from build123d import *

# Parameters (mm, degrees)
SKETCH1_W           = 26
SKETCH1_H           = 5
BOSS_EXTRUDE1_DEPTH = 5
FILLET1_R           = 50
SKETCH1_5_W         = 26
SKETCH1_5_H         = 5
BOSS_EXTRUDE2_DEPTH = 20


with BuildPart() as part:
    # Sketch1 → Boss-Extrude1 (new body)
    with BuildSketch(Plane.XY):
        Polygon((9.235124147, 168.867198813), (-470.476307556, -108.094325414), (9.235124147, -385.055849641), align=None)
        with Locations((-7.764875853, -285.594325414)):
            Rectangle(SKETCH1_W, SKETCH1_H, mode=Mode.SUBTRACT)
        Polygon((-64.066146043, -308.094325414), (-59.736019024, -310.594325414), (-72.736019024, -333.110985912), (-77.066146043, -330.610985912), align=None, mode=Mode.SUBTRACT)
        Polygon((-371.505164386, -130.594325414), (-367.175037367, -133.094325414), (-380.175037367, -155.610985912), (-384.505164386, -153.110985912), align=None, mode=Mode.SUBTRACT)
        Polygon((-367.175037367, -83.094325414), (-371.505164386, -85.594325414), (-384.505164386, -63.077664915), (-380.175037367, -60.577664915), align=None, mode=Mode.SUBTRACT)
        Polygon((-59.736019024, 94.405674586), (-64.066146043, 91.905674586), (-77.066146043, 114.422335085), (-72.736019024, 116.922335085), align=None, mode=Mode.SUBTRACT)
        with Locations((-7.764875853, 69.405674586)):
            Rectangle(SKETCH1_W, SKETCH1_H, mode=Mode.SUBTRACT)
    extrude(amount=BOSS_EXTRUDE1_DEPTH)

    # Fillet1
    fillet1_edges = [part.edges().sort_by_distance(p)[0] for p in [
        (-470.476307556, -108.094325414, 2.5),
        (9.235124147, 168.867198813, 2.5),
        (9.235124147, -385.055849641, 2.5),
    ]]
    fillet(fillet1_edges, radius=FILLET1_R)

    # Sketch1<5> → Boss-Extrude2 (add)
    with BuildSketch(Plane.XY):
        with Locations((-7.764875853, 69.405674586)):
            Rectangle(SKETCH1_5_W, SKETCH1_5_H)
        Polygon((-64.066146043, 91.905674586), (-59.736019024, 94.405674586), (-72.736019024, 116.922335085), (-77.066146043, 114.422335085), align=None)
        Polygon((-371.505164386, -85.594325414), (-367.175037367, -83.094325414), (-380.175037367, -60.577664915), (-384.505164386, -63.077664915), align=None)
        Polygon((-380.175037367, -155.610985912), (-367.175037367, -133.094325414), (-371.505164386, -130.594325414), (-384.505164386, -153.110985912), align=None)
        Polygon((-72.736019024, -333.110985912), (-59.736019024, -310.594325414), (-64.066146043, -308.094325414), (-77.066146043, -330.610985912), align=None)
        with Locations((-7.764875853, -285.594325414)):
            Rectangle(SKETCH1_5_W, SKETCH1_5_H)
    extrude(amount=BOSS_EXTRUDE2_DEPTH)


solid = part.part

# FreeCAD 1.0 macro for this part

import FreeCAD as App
import Part
import Sketcher
Q = App.Units.Quantity


def edges_at(feature, points):
    """Names of the edges that pass closest to the given points."""
    edges = feature.Shape.Edges
    near = lambda p: min(range(len(edges)), key=lambda i: edges[i].distToShape(Part.Vertex(*p))[0])
    return sorted({f"Edge{near(p) + 1}" for p in points})

doc = App.newDocument("Part")
params = doc.addObject("Spreadsheet::Sheet", "Params")
for row, (alias, value) in enumerate([
    ("sketch1_width", "26 mm"),
    ("sketch1_height", "5 mm"),
    ("sketch1_length", "26 mm"),
    ("sketch1_length2", "5 mm"),
    ("pad1_length", "5 mm"),
    ("fillet_radius", "50 mm"),
    ("sketch2_width", "26 mm"),
    ("sketch2_height", "5 mm"),
    ("sketch2_length", "5 mm"),
    ("sketch2_length2", "26 mm"),
    ("pad2_length", "20 mm"),
], start=1):
    params.set(f"A{row}", alias)
    params.set(f"B{row}", "=" + value)
    params.setAlias(f"B{row}", alias)

body = doc.addObject("PartDesign::Body", "Body")

sketch1 = body.newObject("Sketcher::SketchObject", "Sketch")
sketch1.AttachmentSupport = (doc.getObject("XY_Plane"), [""])
sketch1.MapMode = "FlatFace"
sketch1.addGeometry([
    Part.LineSegment(App.Vector(9, 169, 0), App.Vector(-470, -108, 0)),
    Part.LineSegment(App.Vector(-470, -108, 0), App.Vector(9, -385, 0)),
    Part.LineSegment(App.Vector(9, -385, 0), App.Vector(9, 169, 0)),
    Part.LineSegment(App.Vector(-385, -153, 0), App.Vector(-372, -131, 0)),
    Part.LineSegment(App.Vector(-372, -131, 0), App.Vector(-367, -133, 0)),
    Part.LineSegment(App.Vector(-367, -133, 0), App.Vector(-380, -156, 0)),
    Part.LineSegment(App.Vector(-380, -156, 0), App.Vector(-385, -153, 0)),
    Part.LineSegment(App.Vector(-77, -331, 0), App.Vector(-64, -308, 0)),
    Part.LineSegment(App.Vector(-64, -308, 0), App.Vector(-60, -311, 0)),
    Part.LineSegment(App.Vector(-60, -311, 0), App.Vector(-73, -333, 0)),
    Part.LineSegment(App.Vector(-73, -333, 0), App.Vector(-77, -331, 0)),
    Part.LineSegment(App.Vector(5, -288, 0), App.Vector(-21, -288, 0)),
    Part.LineSegment(App.Vector(-21, -288, 0), App.Vector(-21, -283, 0)),
    Part.LineSegment(App.Vector(-21, -283, 0), App.Vector(5, -283, 0)),
    Part.LineSegment(App.Vector(5, -283, 0), App.Vector(5, -288, 0)),
    Part.LineSegment(App.Vector(-380, -61, 0), App.Vector(-367, -83, 0)),
    Part.LineSegment(App.Vector(-367, -83, 0), App.Vector(-372, -86, 0)),
    Part.LineSegment(App.Vector(-372, -86, 0), App.Vector(-385, -63, 0)),
    Part.LineSegment(App.Vector(-385, -63, 0), App.Vector(-380, -61, 0)),
    Part.LineSegment(App.Vector(-73, 117, 0), App.Vector(-60, 94, 0)),
    Part.LineSegment(App.Vector(-60, 94, 0), App.Vector(-64, 92, 0)),
    Part.LineSegment(App.Vector(-64, 92, 0), App.Vector(-77, 114, 0)),
    Part.LineSegment(App.Vector(-77, 114, 0), App.Vector(-73, 117, 0)),
    Part.LineSegment(App.Vector(5, 67, 0), App.Vector(-21, 67, 0)),
    Part.LineSegment(App.Vector(-21, 67, 0), App.Vector(-21, 72, 0)),
    Part.LineSegment(App.Vector(-21, 72, 0), App.Vector(5, 72, 0)),
    Part.LineSegment(App.Vector(5, 72, 0), App.Vector(5, 67, 0)),
], False)
sketch1.addConstraint([
    Sketcher.Constraint("Coincident", 0, 2, 1, 1),
    Sketcher.Constraint("Coincident", 1, 2, 2, 1),
    Sketcher.Constraint("Coincident", 2, 2, 0, 1),
    Sketcher.Constraint("Coincident", 3, 2, 4, 1),
    Sketcher.Constraint("Coincident", 4, 2, 5, 1),
    Sketcher.Constraint("Coincident", 5, 2, 6, 1),
    Sketcher.Constraint("Coincident", 6, 2, 3, 1),
    Sketcher.Constraint("Coincident", 7, 2, 8, 1),
    Sketcher.Constraint("Coincident", 8, 2, 9, 1),
    Sketcher.Constraint("Coincident", 9, 2, 10, 1),
    Sketcher.Constraint("Coincident", 10, 2, 7, 1),
    Sketcher.Constraint("Coincident", 11, 2, 12, 1),
    Sketcher.Constraint("Coincident", 12, 2, 13, 1),
    Sketcher.Constraint("Coincident", 13, 2, 14, 1),
    Sketcher.Constraint("Coincident", 14, 2, 11, 1),
    Sketcher.Constraint("Coincident", 15, 2, 16, 1),
    Sketcher.Constraint("Coincident", 16, 2, 17, 1),
    Sketcher.Constraint("Coincident", 17, 2, 18, 1),
    Sketcher.Constraint("Coincident", 18, 2, 15, 1),
    Sketcher.Constraint("Coincident", 19, 2, 20, 1),
    Sketcher.Constraint("Coincident", 20, 2, 21, 1),
    Sketcher.Constraint("Coincident", 21, 2, 22, 1),
    Sketcher.Constraint("Coincident", 22, 2, 19, 1),
    Sketcher.Constraint("Coincident", 23, 2, 24, 1),
    Sketcher.Constraint("Coincident", 24, 2, 25, 1),
    Sketcher.Constraint("Coincident", 25, 2, 26, 1),
    Sketcher.Constraint("Coincident", 26, 2, 23, 1),
    Sketcher.Constraint("Vertical", 2),
    Sketcher.Constraint("Horizontal", 11),
    Sketcher.Constraint("Vertical", 12),
    Sketcher.Constraint("Horizontal", 13),
    Sketcher.Constraint("Vertical", 14),
    Sketcher.Constraint("Horizontal", 23),
    Sketcher.Constraint("Vertical", 24),
    Sketcher.Constraint("Horizontal", 25),
    Sketcher.Constraint("Vertical", 26),
    Sketcher.Constraint("Perpendicular", 1, 3),
    Sketcher.Constraint("Perpendicular", 3, 4),
    Sketcher.Constraint("Perpendicular", 4, 5),
    Sketcher.Constraint("Perpendicular", 5, 6),
    Sketcher.Constraint("Perpendicular", 6, 7),
    Sketcher.Constraint("Perpendicular", 7, 8),
    Sketcher.Constraint("Perpendicular", 8, 9),
    Sketcher.Constraint("Perpendicular", 9, 10),
    Sketcher.Constraint("Perpendicular", 0, 15),
    Sketcher.Constraint("Perpendicular", 15, 16),
    Sketcher.Constraint("Perpendicular", 16, 17),
    Sketcher.Constraint("Perpendicular", 17, 18),
    Sketcher.Constraint("Perpendicular", 18, 19),
    Sketcher.Constraint("Perpendicular", 19, 20),
    Sketcher.Constraint("Perpendicular", 20, 21),
    Sketcher.Constraint("Perpendicular", 21, 22),
    Sketcher.Constraint("Vertical", 4, 2, 15, 2),
    Sketcher.Constraint("Vertical", 3, 2, 16, 2),
    Sketcher.Constraint("Vertical", 6, 2, 17, 2),
    Sketcher.Constraint("Vertical", 8, 2, 19, 2),
    Sketcher.Constraint("Vertical", 7, 2, 20, 2),
    Sketcher.Constraint("Vertical", 10, 2, 21, 2),
    Sketcher.Constraint("Vertical", 12, 2, 23, 2),
    Sketcher.Constraint("Vertical", 14, 2, 25, 2),
    Sketcher.Constraint("Equal", 14, 24),
    Sketcher.Constraint("Equal", 0, 1),
    Sketcher.Constraint("Equal", 5, 7),
    Sketcher.Constraint("Equal", 6, 8),
    Sketcher.Constraint("DistanceX", 11, 2, 11, 1, 26.0),
    Sketcher.Constraint("DistanceY", 12, 1, 12, 2, 5.0),
    Sketcher.Constraint("Angle", 0, Q("-150 deg")),
    Sketcher.Constraint("Distance", 3, 26.0),
    Sketcher.Constraint("Distance", 4, 5.0),
    Sketcher.Constraint("DistanceY", 4, 2, 0, 2, 25.0),
    Sketcher.Constraint("DistanceY", 7, 2, 4, 2, 175.0),
    Sketcher.Constraint("DistanceY", 7, 2, 11, 2, 20.0),
    Sketcher.Constraint("DistanceX", 11, 2, 1, 2, 30.0),
    Sketcher.Constraint("DistanceY", 4, 2, 15, 2, 50.0),
    Sketcher.Constraint("DistanceY", 16, 2, 19, 2, 180.0),
    Sketcher.Constraint("DistanceY", 23, 2, 20, 2, 25.0),
    Sketcher.Constraint("DistanceY", 2, 1, 2, 2, 553.923048),
    Sketcher.Constraint("DistanceY", -1, 1, 2, 2, 168.867199),
    Sketcher.Constraint("DistanceX", 8, 2, -1, 1, 59.736019),
    Sketcher.Constraint("DistanceX", 3, 2, 1, 2, 380.740289),
    Sketcher.Constraint("DistanceX", 7, 2, 1, 2, 73.30127),
])
sketch1.setExpression("Constraints[64]", "Params.sketch1_width")
sketch1.setExpression("Constraints[65]", "Params.sketch1_height")
sketch1.setExpression("Constraints[67]", "Params.sketch1_length")
sketch1.setExpression("Constraints[68]", "Params.sketch1_length2")
pad1 = body.newObject("PartDesign::Pad", "Pad")
pad1.Profile = sketch1
pad1.setExpression("Length", "Params.pad1_length")
doc.recompute()

fillet = body.newObject("PartDesign::Fillet", "Fillet")
fillet.Base = (pad1, edges_at(pad1, [(-470.476, -108.094, 2.5), (9.235, 168.867, 2.5), (9.235, -385.056, 2.5)]))
fillet.setExpression("Radius", "Params.fillet_radius")

sketch2 = body.newObject("Sketcher::SketchObject", "Sketch001")
sketch2.AttachmentSupport = (doc.getObject("XY_Plane"), [""])
sketch2.MapMode = "FlatFace"
sketch2.addGeometry([
    Part.LineSegment(App.Vector(-21, 72, 0), App.Vector(-21, 67, 0)),
    Part.LineSegment(App.Vector(-21, 67, 0), App.Vector(5, 67, 0)),
    Part.LineSegment(App.Vector(5, 67, 0), App.Vector(5, 72, 0)),
    Part.LineSegment(App.Vector(5, 72, 0), App.Vector(-21, 72, 0)),
    Part.LineSegment(App.Vector(-64, 92, 0), App.Vector(-60, 94, 0)),
    Part.LineSegment(App.Vector(-60, 94, 0), App.Vector(-73, 117, 0)),
    Part.LineSegment(App.Vector(-73, 117, 0), App.Vector(-77, 114, 0)),
    Part.LineSegment(App.Vector(-77, 114, 0), App.Vector(-64, 92, 0)),
    Part.LineSegment(App.Vector(-372, -86, 0), App.Vector(-367, -83, 0)),
    Part.LineSegment(App.Vector(-367, -83, 0), App.Vector(-380, -61, 0)),
    Part.LineSegment(App.Vector(-380, -61, 0), App.Vector(-385, -63, 0)),
    Part.LineSegment(App.Vector(-385, -63, 0), App.Vector(-372, -86, 0)),
    Part.LineSegment(App.Vector(-380, -156, 0), App.Vector(-367, -133, 0)),
    Part.LineSegment(App.Vector(-367, -133, 0), App.Vector(-372, -131, 0)),
    Part.LineSegment(App.Vector(-372, -131, 0), App.Vector(-385, -153, 0)),
    Part.LineSegment(App.Vector(-385, -153, 0), App.Vector(-380, -156, 0)),
    Part.LineSegment(App.Vector(-73, -333, 0), App.Vector(-60, -311, 0)),
    Part.LineSegment(App.Vector(-60, -311, 0), App.Vector(-64, -308, 0)),
    Part.LineSegment(App.Vector(-64, -308, 0), App.Vector(-77, -331, 0)),
    Part.LineSegment(App.Vector(-77, -331, 0), App.Vector(-73, -333, 0)),
    Part.LineSegment(App.Vector(-21, -283, 0), App.Vector(-21, -288, 0)),
    Part.LineSegment(App.Vector(-21, -288, 0), App.Vector(5, -288, 0)),
    Part.LineSegment(App.Vector(5, -288, 0), App.Vector(5, -283, 0)),
    Part.LineSegment(App.Vector(5, -283, 0), App.Vector(-21, -283, 0)),
], False)
sketch2.addConstraint([
    Sketcher.Constraint("Coincident", 0, 2, 1, 1),
    Sketcher.Constraint("Coincident", 1, 2, 2, 1),
    Sketcher.Constraint("Coincident", 2, 2, 3, 1),
    Sketcher.Constraint("Coincident", 3, 2, 0, 1),
    Sketcher.Constraint("Coincident", 4, 2, 5, 1),
    Sketcher.Constraint("Coincident", 5, 2, 6, 1),
    Sketcher.Constraint("Coincident", 6, 2, 7, 1),
    Sketcher.Constraint("Coincident", 7, 2, 4, 1),
    Sketcher.Constraint("Coincident", 8, 2, 9, 1),
    Sketcher.Constraint("Coincident", 9, 2, 10, 1),
    Sketcher.Constraint("Coincident", 10, 2, 11, 1),
    Sketcher.Constraint("Coincident", 11, 2, 8, 1),
    Sketcher.Constraint("Coincident", 12, 2, 13, 1),
    Sketcher.Constraint("Coincident", 13, 2, 14, 1),
    Sketcher.Constraint("Coincident", 14, 2, 15, 1),
    Sketcher.Constraint("Coincident", 15, 2, 12, 1),
    Sketcher.Constraint("Coincident", 16, 2, 17, 1),
    Sketcher.Constraint("Coincident", 17, 2, 18, 1),
    Sketcher.Constraint("Coincident", 18, 2, 19, 1),
    Sketcher.Constraint("Coincident", 19, 2, 16, 1),
    Sketcher.Constraint("Coincident", 20, 2, 21, 1),
    Sketcher.Constraint("Coincident", 21, 2, 22, 1),
    Sketcher.Constraint("Coincident", 22, 2, 23, 1),
    Sketcher.Constraint("Coincident", 23, 2, 20, 1),
    Sketcher.Constraint("Vertical", 0),
    Sketcher.Constraint("Horizontal", 1),
    Sketcher.Constraint("Vertical", 2),
    Sketcher.Constraint("Horizontal", 3),
    Sketcher.Constraint("Vertical", 20),
    Sketcher.Constraint("Horizontal", 21),
    Sketcher.Constraint("Vertical", 22),
    Sketcher.Constraint("Horizontal", 23),
    Sketcher.Constraint("Perpendicular", 4, 5),
    Sketcher.Constraint("Perpendicular", 5, 6),
    Sketcher.Constraint("Perpendicular", 6, 7),
    Sketcher.Constraint("Perpendicular", 7, 8),
    Sketcher.Constraint("Perpendicular", 8, 9),
    Sketcher.Constraint("Perpendicular", 9, 10),
    Sketcher.Constraint("Perpendicular", 10, 11),
    Sketcher.Constraint("Perpendicular", 12, 13),
    Sketcher.Constraint("Perpendicular", 13, 14),
    Sketcher.Constraint("Perpendicular", 14, 15),
    Sketcher.Constraint("Perpendicular", 15, 16),
    Sketcher.Constraint("Perpendicular", 16, 17),
    Sketcher.Constraint("Perpendicular", 17, 18),
    Sketcher.Constraint("Perpendicular", 18, 19),
    Sketcher.Constraint("Vertical", 8, 2, 12, 2),
    Sketcher.Constraint("Vertical", 11, 2, 13, 2),
    Sketcher.Constraint("Vertical", 10, 2, 14, 2),
    Sketcher.Constraint("Vertical", 4, 2, 16, 2),
    Sketcher.Constraint("Vertical", 7, 2, 17, 2),
    Sketcher.Constraint("Vertical", 6, 2, 18, 2),
    Sketcher.Constraint("Vertical", 3, 2, 20, 2),
    Sketcher.Constraint("Vertical", 2, 2, 21, 2),
    Sketcher.Constraint("Equal", 2, 20),
    Sketcher.Constraint("Equal", 6, 8),
    Sketcher.Constraint("Equal", 7, 9),
    Sketcher.Constraint("Equal", 11, 12),
    Sketcher.Constraint("DistanceX", 1, 1, 1, 2, 26.0),
    Sketcher.Constraint("DistanceY", 0, 2, 0, 1, 5.0),
    Sketcher.Constraint("Angle", 4, Q("30 deg")),
    Sketcher.Constraint("Distance", 4, 5.0),
    Sketcher.Constraint("Distance", 5, 26.0),
    Sketcher.Constraint("DistanceY", 3, 2, 7, 2, 20.0),
    Sketcher.Constraint("DistanceY", 8, 2, 7, 2, 175.0),
    Sketcher.Constraint("DistanceY", 12, 2, 8, 2, 50.0),
    Sketcher.Constraint("DistanceY", 16, 2, 13, 2, 180.0),
    Sketcher.Constraint("DistanceY", 17, 2, 20, 2, 20.0),
    Sketcher.Constraint("DistanceX", 4, 2, -1, 1, 59.736019),
    Sketcher.Constraint("DistanceX", 6, 2, 3, 2, 56.30127),
    Sketcher.Constraint("DistanceX", 8, 2, 7, 2, 303.108891),
    Sketcher.Constraint("DistanceY", -1, 1, 0, 2, 66.905675),
])
sketch2.setExpression("Constraints[58]", "Params.sketch2_width")
sketch2.setExpression("Constraints[59]", "Params.sketch2_height")
sketch2.setExpression("Constraints[61]", "Params.sketch2_length")
sketch2.setExpression("Constraints[62]", "Params.sketch2_length2")
pad2 = body.newObject("PartDesign::Pad", "Pad001")
pad2.Profile = sketch2
pad2.setExpression("Length", "Params.pad2_length")

doc.recompute()
